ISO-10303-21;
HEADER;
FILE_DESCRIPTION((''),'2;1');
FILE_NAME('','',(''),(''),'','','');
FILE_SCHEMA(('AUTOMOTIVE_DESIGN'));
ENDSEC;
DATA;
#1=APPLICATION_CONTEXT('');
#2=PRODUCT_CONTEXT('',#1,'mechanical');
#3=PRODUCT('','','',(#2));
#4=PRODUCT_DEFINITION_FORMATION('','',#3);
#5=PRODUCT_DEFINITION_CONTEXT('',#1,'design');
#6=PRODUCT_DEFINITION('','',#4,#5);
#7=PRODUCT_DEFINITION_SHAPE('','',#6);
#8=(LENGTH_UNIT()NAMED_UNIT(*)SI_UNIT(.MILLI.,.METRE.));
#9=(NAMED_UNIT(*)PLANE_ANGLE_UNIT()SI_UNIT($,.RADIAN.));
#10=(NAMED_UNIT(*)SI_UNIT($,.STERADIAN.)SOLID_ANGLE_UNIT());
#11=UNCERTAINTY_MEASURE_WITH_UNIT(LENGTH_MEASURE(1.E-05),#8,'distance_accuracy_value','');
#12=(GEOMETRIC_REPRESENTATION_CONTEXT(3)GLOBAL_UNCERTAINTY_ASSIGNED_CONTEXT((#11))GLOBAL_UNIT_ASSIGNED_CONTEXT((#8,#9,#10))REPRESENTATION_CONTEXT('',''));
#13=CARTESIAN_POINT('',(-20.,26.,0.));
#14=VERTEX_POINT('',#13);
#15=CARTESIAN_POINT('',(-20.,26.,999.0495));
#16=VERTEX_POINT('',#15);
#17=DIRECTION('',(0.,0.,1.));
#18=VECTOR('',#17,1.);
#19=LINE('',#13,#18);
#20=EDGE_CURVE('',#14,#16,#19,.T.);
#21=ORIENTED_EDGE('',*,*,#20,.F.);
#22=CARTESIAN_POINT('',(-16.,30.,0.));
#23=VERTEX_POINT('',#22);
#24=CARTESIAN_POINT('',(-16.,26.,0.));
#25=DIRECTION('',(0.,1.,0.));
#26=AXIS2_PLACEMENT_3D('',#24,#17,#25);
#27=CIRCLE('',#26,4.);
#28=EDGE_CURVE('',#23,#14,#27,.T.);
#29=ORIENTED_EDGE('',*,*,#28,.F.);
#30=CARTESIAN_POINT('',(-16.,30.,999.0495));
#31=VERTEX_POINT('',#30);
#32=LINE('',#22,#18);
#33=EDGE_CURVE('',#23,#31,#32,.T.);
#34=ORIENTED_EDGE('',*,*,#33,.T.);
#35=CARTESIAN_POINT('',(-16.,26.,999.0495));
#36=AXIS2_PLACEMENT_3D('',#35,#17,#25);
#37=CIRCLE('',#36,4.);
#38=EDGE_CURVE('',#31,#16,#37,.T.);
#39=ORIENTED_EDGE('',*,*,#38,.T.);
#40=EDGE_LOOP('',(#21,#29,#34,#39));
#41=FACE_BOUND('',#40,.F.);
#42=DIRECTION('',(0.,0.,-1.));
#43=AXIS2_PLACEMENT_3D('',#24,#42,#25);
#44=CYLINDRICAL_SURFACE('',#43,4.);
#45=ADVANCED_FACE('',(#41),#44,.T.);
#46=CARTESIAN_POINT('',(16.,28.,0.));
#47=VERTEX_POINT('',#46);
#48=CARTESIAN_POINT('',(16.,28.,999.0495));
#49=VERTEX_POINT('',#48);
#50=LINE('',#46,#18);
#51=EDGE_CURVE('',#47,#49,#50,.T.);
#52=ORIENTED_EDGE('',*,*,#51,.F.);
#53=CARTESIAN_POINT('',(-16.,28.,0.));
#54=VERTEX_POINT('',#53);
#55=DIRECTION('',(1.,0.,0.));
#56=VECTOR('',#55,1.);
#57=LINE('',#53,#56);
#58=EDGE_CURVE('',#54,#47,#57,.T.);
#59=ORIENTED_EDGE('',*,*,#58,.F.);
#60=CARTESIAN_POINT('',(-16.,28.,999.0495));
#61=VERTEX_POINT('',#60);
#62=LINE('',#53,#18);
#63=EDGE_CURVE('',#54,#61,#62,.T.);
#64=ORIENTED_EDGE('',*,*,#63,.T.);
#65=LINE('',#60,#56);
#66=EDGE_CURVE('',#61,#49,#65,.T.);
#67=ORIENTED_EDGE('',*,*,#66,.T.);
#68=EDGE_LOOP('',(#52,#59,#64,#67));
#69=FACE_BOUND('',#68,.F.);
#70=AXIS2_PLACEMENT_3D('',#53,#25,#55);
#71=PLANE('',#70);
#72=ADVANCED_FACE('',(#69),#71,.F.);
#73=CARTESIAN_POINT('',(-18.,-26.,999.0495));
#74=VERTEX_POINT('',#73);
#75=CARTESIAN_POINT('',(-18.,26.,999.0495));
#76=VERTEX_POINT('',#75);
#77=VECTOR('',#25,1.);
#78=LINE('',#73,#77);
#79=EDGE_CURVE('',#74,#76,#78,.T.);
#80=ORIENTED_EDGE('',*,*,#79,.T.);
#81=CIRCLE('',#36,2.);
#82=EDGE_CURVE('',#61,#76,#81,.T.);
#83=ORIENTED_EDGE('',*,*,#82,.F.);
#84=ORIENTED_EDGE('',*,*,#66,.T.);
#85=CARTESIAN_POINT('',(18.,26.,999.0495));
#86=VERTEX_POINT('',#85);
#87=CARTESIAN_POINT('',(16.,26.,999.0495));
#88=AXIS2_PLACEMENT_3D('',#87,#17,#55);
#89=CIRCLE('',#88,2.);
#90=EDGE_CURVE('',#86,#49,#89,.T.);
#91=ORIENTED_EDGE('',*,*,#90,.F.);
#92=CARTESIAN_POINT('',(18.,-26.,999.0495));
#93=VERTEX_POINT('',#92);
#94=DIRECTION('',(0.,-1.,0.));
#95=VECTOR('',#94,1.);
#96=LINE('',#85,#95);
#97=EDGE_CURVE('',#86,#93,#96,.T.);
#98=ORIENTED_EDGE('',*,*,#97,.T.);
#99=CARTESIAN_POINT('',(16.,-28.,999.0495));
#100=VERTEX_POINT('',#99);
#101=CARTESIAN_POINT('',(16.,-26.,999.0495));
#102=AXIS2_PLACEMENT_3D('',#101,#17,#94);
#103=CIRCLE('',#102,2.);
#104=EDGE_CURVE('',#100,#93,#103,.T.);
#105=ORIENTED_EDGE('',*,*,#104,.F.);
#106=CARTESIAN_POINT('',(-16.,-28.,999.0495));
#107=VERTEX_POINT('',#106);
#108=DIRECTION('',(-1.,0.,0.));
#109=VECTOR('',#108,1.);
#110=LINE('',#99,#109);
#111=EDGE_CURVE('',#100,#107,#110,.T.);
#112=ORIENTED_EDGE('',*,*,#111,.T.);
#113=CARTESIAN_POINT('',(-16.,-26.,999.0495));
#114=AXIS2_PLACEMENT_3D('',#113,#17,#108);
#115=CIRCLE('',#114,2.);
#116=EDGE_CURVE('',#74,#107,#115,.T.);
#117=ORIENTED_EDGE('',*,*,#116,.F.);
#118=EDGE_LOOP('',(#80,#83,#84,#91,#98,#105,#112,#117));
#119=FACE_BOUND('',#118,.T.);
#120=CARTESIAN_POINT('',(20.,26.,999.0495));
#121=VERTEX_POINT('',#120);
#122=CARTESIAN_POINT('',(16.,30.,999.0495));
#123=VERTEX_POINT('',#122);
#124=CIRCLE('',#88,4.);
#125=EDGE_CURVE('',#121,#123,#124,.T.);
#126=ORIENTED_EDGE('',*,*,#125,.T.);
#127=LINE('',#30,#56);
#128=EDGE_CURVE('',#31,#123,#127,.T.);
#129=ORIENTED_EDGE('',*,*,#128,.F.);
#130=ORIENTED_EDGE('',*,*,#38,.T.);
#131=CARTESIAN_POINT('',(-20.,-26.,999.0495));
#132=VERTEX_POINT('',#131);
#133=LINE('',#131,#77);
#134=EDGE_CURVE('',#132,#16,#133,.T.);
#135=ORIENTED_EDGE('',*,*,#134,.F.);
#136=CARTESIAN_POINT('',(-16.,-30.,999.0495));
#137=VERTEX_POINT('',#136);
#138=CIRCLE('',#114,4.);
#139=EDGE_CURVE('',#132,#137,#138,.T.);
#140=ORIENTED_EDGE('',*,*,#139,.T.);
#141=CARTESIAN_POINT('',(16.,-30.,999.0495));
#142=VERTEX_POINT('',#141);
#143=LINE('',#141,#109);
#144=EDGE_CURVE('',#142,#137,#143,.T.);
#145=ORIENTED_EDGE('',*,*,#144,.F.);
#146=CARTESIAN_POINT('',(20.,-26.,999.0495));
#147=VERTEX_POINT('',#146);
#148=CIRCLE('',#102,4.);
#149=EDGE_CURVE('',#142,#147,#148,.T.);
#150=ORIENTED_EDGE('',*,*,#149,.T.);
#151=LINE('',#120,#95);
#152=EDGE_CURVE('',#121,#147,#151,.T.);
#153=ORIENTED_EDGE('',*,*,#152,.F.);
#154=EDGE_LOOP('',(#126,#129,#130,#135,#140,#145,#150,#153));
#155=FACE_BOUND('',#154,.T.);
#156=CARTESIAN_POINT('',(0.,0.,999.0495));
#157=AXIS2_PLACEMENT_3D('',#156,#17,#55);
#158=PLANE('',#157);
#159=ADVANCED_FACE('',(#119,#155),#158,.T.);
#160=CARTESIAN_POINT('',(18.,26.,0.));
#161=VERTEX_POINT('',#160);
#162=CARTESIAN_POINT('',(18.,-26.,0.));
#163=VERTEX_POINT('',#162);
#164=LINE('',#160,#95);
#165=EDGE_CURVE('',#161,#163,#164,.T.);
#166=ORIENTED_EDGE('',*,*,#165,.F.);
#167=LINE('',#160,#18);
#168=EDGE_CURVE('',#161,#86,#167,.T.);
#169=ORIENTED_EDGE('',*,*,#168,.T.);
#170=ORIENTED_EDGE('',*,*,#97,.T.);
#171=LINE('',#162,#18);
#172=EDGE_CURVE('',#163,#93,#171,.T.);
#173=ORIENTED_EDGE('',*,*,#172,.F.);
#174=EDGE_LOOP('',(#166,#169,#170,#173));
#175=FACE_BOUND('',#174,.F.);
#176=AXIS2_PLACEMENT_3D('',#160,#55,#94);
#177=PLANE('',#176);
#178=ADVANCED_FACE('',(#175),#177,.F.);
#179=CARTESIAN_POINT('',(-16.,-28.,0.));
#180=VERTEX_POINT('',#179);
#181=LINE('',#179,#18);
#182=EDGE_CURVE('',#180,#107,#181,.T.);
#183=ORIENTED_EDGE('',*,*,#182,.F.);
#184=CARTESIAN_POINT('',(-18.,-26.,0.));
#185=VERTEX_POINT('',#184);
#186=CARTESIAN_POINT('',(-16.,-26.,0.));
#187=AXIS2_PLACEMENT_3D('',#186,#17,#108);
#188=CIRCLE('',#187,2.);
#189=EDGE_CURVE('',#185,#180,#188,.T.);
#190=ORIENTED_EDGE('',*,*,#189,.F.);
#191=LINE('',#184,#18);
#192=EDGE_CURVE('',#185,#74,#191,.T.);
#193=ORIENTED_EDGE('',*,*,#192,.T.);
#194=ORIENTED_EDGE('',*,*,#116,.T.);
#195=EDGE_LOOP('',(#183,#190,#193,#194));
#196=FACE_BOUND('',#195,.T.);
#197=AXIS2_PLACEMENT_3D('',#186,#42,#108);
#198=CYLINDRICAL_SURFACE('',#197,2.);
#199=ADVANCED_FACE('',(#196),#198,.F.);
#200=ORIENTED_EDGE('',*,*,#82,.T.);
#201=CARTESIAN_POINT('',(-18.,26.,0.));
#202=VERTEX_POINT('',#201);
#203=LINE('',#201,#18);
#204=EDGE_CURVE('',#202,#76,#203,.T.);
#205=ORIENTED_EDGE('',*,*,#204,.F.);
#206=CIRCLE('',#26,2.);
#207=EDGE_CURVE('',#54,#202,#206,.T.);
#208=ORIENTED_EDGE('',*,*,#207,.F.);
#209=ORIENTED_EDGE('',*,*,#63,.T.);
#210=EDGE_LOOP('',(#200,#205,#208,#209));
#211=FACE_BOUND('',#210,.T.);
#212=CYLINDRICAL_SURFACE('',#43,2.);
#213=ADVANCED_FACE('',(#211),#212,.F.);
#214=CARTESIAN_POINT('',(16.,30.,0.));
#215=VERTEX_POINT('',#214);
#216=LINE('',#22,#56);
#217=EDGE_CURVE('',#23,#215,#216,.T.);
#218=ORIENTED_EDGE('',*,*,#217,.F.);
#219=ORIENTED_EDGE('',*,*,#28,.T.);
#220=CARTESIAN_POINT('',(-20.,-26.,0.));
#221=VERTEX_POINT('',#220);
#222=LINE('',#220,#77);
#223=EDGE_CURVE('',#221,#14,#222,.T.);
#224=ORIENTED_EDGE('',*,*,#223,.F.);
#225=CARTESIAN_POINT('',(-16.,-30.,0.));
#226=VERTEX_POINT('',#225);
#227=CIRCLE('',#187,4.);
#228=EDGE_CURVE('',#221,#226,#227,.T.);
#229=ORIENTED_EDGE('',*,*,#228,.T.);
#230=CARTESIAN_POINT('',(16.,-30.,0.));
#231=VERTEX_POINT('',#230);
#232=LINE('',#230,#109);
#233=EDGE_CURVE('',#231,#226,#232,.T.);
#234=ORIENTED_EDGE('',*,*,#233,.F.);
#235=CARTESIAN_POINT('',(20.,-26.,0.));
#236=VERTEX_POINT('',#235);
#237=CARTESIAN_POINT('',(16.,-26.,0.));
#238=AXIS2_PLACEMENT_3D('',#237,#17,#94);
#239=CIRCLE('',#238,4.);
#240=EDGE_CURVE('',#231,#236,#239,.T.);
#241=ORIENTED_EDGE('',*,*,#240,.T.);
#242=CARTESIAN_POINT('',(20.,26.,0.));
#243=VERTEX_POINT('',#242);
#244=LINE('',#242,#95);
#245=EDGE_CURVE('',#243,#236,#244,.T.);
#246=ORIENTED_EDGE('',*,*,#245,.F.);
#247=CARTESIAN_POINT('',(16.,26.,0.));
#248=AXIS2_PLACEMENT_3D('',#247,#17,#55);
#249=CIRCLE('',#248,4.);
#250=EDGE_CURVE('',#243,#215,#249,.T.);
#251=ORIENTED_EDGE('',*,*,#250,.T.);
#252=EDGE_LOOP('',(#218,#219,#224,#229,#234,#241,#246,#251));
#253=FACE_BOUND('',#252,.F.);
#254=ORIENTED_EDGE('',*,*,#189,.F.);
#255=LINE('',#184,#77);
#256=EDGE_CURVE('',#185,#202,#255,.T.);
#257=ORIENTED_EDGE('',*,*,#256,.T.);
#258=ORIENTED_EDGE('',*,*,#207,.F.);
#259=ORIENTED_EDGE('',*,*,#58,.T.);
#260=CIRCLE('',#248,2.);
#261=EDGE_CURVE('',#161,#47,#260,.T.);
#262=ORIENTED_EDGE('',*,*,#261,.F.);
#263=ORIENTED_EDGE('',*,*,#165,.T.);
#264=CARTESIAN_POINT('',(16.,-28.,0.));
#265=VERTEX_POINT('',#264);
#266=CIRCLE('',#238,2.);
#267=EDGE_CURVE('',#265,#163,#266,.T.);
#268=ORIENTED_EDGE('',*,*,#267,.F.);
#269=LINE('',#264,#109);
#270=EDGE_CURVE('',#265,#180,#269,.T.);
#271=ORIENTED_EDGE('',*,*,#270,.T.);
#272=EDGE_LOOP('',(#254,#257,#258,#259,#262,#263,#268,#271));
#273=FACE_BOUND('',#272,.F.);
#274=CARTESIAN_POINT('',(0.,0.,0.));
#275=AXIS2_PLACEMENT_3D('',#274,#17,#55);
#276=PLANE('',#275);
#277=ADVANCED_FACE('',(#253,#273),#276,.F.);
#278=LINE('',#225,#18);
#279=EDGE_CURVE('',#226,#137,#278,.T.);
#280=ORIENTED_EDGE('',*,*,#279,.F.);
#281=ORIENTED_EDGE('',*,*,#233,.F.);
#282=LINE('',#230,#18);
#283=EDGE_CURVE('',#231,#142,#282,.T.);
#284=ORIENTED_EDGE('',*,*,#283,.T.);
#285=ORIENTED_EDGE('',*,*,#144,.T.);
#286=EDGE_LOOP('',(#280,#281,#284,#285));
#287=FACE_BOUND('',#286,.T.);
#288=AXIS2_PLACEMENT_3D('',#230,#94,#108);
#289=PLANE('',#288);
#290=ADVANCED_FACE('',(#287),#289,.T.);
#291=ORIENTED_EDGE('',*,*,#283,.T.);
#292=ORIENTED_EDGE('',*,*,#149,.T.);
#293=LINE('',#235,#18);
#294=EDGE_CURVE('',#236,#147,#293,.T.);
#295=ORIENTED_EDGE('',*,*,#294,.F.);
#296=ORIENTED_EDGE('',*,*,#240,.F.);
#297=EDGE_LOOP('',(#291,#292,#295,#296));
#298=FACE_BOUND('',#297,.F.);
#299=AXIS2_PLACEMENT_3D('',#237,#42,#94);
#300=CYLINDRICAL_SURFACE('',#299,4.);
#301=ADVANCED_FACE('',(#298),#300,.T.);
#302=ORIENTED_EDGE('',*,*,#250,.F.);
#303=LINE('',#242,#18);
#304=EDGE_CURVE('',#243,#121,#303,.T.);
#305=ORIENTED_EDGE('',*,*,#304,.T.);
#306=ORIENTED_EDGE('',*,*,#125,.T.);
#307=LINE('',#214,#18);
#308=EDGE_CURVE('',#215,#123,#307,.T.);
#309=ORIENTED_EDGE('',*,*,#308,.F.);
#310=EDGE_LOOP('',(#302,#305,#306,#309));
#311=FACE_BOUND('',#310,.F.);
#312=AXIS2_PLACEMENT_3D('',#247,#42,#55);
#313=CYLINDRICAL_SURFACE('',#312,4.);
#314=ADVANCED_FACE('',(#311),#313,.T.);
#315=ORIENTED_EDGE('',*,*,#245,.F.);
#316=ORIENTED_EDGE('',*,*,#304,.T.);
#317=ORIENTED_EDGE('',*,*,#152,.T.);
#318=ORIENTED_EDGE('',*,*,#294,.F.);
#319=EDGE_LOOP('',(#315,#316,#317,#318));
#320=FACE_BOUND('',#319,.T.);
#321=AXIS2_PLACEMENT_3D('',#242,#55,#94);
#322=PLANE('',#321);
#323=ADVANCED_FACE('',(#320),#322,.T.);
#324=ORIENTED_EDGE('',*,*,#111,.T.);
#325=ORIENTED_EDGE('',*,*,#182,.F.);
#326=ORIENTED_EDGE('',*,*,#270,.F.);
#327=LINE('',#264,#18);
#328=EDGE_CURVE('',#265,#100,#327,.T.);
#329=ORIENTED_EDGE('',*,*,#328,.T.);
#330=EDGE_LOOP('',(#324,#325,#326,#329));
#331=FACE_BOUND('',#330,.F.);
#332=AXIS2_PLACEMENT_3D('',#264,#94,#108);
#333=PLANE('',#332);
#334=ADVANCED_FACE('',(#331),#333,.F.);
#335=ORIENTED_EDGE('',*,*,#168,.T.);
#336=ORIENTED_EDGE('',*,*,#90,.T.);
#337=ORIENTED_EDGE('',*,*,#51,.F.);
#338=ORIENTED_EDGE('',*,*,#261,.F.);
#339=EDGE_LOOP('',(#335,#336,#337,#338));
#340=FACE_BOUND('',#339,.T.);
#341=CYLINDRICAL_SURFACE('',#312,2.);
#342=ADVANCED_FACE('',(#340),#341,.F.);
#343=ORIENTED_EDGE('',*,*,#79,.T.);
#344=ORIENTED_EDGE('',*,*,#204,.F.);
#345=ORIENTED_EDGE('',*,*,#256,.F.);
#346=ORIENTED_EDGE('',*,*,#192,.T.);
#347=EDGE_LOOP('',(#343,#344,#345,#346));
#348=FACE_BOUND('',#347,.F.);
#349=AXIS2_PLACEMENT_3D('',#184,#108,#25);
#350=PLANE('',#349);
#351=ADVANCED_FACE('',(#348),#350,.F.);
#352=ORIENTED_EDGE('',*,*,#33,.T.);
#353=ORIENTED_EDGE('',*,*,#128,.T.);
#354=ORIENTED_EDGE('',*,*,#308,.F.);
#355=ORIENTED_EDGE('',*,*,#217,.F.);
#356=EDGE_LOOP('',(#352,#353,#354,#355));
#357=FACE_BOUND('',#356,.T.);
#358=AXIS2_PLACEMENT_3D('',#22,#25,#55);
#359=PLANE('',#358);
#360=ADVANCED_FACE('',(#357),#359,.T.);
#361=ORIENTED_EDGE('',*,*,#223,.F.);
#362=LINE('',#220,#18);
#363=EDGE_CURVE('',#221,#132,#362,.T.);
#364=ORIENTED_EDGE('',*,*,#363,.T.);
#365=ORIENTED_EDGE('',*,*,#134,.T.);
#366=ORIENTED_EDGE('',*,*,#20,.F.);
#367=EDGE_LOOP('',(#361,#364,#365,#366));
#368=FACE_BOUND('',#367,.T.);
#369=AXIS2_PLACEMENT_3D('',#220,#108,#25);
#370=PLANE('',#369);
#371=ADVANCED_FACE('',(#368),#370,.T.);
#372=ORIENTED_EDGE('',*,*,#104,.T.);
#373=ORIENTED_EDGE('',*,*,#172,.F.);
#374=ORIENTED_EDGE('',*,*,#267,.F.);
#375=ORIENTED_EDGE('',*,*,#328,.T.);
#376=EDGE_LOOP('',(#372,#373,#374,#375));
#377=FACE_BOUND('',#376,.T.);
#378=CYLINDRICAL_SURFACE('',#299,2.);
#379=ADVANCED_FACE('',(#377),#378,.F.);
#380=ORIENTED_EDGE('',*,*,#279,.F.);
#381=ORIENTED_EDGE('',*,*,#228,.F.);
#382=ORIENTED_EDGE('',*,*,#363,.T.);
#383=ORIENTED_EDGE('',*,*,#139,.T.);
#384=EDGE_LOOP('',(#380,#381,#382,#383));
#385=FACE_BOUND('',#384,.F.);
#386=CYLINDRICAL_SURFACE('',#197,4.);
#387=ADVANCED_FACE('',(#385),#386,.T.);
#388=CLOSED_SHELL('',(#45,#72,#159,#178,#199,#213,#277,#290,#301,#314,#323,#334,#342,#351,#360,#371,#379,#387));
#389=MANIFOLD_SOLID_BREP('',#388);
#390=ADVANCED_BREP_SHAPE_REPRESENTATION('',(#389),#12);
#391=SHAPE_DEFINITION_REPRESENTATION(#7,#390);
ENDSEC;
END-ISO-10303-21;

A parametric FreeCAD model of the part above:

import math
import FreeCAD as App
import Part
import Sketcher
from FreeCAD import Vector

doc = App.newDocument("Part")
body = doc.addObject("PartDesign::Body", "Body")

# Sketch on XY plane
sketch1 = body.newObject("Sketcher::SketchObject", "Sketch")
sketch1.AttachmentSupport = (doc.getObject("XY_Plane"), [""])
sketch1.MapMode = "FlatFace"
sketch1.addGeometry([
    Part.LineSegment(Vector(-20, 26, 0), Vector(-20, -26, 0)),  # 0
    Part.ArcOfCircle(Part.Circle(Vector(-16, -26, 0), Vector(0, 0, 1), 4), math.radians(180), math.radians(270)),  # 1
    Part.LineSegment(Vector(-16, -30, 0), Vector(16, -30, 0)),  # 2
    Part.ArcOfCircle(Part.Circle(Vector(16, -26, 0), Vector(0, 0, 1), 4), math.radians(-90), math.radians(0)),  # 3
    Part.LineSegment(Vector(20, -26, 0), Vector(20, 26, 0)),  # 4
    Part.ArcOfCircle(Part.Circle(Vector(16, 26, 0), Vector(0, 0, 1), 4), math.radians(0), math.radians(90)),  # 5
    Part.LineSegment(Vector(16, 30, 0), Vector(-16, 30, 0)),  # 6
    Part.ArcOfCircle(Part.Circle(Vector(-16, 26, 0), Vector(0, 0, 1), 4), math.radians(90), math.radians(180)),  # 7
    Part.ArcOfCircle(Part.Circle(Vector(-16, 26, 0), Vector(0, 0, 1), 2), math.radians(90), math.radians(180)),  # 8
    Part.LineSegment(Vector(-16, 28, 0), Vector(16, 28, 0)),  # 9
    Part.ArcOfCircle(Part.Circle(Vector(16, 26, 0), Vector(0, 0, 1), 2), math.radians(0), math.radians(90)),  # 10
    Part.LineSegment(Vector(18, 26, 0), Vector(18, -26, 0)),  # 11
    Part.ArcOfCircle(Part.Circle(Vector(16, -26, 0), Vector(0, 0, 1), 2), math.radians(-90), math.radians(0)),  # 12
    Part.LineSegment(Vector(16, -28, 0), Vector(-16, -28, 0)),  # 13
    Part.ArcOfCircle(Part.Circle(Vector(-16, -26, 0), Vector(0, 0, 1), 2), math.radians(180), math.radians(270)),  # 14
    Part.LineSegment(Vector(-18, -26, 0), Vector(-18, 26, 0)),  # 15
], False)
sketch1.addConstraint([
    Sketcher.Constraint("Tangent", 0, 2, 1, 1),
    Sketcher.Constraint("Tangent", 1, 2, 2, 1),
    Sketcher.Constraint("Tangent", 2, 2, 3, 1),
    Sketcher.Constraint("Tangent", 3, 2, 4, 1),
    Sketcher.Constraint("Tangent", 4, 2, 5, 1),
    Sketcher.Constraint("Tangent", 5, 2, 6, 1),
    Sketcher.Constraint("Tangent", 6, 2, 7, 1),
    Sketcher.Constraint("Tangent", 7, 2, 0, 1),
    Sketcher.Constraint("Tangent", 8, 1, 9, 1),
    Sketcher.Constraint("Tangent", 9, 2, 10, 2),
    Sketcher.Constraint("Tangent", 10, 1, 11, 1),
    Sketcher.Constraint("Tangent", 11, 2, 12, 2),
    Sketcher.Constraint("Tangent", 12, 1, 13, 1),
    Sketcher.Constraint("Tangent", 13, 2, 14, 2),
    Sketcher.Constraint("Tangent", 14, 1, 15, 1),
    Sketcher.Constraint("Tangent", 15, 2, 8, 2),
    Sketcher.Constraint("Vertical", 0),
    Sketcher.Constraint("Horizontal", 2),
    Sketcher.Constraint("Vertical", 4),
    Sketcher.Constraint("Horizontal", 6),
    Sketcher.Constraint("Horizontal", 9),
    Sketcher.Constraint("Vertical", 11),
    Sketcher.Constraint("Horizontal", 13),
    Sketcher.Constraint("Vertical", 15),
    Sketcher.Constraint("Coincident", 8, 3, 7, 3),
    Sketcher.Constraint("Coincident", 10, 3, 5, 3),
    Sketcher.Constraint("Coincident", 12, 3, 3, 3),
    Sketcher.Constraint("Equal", 1, 3),
    Sketcher.Constraint("Equal", 3, 5),
    Sketcher.Constraint("Equal", 5, 7),
    Sketcher.Constraint("Equal", 12, 14),
    Sketcher.Constraint("Symmetric", 1, 3, 5, 3, -1, 1),
    Sketcher.Constraint("Radius", 1, 4.0),
    Sketcher.Constraint("Radius", 8, 2.0),
    Sketcher.Constraint("DistanceX", 0, 2, -1, 1, 20.0),
    Sketcher.Constraint("DistanceY", 1, 2, -1, 1, 30.0),
])
pad1 = body.newObject("PartDesign::Pad", "Pad")
pad1.Profile = sketch1
pad1.Length = 999.0495

doc.recompute()
